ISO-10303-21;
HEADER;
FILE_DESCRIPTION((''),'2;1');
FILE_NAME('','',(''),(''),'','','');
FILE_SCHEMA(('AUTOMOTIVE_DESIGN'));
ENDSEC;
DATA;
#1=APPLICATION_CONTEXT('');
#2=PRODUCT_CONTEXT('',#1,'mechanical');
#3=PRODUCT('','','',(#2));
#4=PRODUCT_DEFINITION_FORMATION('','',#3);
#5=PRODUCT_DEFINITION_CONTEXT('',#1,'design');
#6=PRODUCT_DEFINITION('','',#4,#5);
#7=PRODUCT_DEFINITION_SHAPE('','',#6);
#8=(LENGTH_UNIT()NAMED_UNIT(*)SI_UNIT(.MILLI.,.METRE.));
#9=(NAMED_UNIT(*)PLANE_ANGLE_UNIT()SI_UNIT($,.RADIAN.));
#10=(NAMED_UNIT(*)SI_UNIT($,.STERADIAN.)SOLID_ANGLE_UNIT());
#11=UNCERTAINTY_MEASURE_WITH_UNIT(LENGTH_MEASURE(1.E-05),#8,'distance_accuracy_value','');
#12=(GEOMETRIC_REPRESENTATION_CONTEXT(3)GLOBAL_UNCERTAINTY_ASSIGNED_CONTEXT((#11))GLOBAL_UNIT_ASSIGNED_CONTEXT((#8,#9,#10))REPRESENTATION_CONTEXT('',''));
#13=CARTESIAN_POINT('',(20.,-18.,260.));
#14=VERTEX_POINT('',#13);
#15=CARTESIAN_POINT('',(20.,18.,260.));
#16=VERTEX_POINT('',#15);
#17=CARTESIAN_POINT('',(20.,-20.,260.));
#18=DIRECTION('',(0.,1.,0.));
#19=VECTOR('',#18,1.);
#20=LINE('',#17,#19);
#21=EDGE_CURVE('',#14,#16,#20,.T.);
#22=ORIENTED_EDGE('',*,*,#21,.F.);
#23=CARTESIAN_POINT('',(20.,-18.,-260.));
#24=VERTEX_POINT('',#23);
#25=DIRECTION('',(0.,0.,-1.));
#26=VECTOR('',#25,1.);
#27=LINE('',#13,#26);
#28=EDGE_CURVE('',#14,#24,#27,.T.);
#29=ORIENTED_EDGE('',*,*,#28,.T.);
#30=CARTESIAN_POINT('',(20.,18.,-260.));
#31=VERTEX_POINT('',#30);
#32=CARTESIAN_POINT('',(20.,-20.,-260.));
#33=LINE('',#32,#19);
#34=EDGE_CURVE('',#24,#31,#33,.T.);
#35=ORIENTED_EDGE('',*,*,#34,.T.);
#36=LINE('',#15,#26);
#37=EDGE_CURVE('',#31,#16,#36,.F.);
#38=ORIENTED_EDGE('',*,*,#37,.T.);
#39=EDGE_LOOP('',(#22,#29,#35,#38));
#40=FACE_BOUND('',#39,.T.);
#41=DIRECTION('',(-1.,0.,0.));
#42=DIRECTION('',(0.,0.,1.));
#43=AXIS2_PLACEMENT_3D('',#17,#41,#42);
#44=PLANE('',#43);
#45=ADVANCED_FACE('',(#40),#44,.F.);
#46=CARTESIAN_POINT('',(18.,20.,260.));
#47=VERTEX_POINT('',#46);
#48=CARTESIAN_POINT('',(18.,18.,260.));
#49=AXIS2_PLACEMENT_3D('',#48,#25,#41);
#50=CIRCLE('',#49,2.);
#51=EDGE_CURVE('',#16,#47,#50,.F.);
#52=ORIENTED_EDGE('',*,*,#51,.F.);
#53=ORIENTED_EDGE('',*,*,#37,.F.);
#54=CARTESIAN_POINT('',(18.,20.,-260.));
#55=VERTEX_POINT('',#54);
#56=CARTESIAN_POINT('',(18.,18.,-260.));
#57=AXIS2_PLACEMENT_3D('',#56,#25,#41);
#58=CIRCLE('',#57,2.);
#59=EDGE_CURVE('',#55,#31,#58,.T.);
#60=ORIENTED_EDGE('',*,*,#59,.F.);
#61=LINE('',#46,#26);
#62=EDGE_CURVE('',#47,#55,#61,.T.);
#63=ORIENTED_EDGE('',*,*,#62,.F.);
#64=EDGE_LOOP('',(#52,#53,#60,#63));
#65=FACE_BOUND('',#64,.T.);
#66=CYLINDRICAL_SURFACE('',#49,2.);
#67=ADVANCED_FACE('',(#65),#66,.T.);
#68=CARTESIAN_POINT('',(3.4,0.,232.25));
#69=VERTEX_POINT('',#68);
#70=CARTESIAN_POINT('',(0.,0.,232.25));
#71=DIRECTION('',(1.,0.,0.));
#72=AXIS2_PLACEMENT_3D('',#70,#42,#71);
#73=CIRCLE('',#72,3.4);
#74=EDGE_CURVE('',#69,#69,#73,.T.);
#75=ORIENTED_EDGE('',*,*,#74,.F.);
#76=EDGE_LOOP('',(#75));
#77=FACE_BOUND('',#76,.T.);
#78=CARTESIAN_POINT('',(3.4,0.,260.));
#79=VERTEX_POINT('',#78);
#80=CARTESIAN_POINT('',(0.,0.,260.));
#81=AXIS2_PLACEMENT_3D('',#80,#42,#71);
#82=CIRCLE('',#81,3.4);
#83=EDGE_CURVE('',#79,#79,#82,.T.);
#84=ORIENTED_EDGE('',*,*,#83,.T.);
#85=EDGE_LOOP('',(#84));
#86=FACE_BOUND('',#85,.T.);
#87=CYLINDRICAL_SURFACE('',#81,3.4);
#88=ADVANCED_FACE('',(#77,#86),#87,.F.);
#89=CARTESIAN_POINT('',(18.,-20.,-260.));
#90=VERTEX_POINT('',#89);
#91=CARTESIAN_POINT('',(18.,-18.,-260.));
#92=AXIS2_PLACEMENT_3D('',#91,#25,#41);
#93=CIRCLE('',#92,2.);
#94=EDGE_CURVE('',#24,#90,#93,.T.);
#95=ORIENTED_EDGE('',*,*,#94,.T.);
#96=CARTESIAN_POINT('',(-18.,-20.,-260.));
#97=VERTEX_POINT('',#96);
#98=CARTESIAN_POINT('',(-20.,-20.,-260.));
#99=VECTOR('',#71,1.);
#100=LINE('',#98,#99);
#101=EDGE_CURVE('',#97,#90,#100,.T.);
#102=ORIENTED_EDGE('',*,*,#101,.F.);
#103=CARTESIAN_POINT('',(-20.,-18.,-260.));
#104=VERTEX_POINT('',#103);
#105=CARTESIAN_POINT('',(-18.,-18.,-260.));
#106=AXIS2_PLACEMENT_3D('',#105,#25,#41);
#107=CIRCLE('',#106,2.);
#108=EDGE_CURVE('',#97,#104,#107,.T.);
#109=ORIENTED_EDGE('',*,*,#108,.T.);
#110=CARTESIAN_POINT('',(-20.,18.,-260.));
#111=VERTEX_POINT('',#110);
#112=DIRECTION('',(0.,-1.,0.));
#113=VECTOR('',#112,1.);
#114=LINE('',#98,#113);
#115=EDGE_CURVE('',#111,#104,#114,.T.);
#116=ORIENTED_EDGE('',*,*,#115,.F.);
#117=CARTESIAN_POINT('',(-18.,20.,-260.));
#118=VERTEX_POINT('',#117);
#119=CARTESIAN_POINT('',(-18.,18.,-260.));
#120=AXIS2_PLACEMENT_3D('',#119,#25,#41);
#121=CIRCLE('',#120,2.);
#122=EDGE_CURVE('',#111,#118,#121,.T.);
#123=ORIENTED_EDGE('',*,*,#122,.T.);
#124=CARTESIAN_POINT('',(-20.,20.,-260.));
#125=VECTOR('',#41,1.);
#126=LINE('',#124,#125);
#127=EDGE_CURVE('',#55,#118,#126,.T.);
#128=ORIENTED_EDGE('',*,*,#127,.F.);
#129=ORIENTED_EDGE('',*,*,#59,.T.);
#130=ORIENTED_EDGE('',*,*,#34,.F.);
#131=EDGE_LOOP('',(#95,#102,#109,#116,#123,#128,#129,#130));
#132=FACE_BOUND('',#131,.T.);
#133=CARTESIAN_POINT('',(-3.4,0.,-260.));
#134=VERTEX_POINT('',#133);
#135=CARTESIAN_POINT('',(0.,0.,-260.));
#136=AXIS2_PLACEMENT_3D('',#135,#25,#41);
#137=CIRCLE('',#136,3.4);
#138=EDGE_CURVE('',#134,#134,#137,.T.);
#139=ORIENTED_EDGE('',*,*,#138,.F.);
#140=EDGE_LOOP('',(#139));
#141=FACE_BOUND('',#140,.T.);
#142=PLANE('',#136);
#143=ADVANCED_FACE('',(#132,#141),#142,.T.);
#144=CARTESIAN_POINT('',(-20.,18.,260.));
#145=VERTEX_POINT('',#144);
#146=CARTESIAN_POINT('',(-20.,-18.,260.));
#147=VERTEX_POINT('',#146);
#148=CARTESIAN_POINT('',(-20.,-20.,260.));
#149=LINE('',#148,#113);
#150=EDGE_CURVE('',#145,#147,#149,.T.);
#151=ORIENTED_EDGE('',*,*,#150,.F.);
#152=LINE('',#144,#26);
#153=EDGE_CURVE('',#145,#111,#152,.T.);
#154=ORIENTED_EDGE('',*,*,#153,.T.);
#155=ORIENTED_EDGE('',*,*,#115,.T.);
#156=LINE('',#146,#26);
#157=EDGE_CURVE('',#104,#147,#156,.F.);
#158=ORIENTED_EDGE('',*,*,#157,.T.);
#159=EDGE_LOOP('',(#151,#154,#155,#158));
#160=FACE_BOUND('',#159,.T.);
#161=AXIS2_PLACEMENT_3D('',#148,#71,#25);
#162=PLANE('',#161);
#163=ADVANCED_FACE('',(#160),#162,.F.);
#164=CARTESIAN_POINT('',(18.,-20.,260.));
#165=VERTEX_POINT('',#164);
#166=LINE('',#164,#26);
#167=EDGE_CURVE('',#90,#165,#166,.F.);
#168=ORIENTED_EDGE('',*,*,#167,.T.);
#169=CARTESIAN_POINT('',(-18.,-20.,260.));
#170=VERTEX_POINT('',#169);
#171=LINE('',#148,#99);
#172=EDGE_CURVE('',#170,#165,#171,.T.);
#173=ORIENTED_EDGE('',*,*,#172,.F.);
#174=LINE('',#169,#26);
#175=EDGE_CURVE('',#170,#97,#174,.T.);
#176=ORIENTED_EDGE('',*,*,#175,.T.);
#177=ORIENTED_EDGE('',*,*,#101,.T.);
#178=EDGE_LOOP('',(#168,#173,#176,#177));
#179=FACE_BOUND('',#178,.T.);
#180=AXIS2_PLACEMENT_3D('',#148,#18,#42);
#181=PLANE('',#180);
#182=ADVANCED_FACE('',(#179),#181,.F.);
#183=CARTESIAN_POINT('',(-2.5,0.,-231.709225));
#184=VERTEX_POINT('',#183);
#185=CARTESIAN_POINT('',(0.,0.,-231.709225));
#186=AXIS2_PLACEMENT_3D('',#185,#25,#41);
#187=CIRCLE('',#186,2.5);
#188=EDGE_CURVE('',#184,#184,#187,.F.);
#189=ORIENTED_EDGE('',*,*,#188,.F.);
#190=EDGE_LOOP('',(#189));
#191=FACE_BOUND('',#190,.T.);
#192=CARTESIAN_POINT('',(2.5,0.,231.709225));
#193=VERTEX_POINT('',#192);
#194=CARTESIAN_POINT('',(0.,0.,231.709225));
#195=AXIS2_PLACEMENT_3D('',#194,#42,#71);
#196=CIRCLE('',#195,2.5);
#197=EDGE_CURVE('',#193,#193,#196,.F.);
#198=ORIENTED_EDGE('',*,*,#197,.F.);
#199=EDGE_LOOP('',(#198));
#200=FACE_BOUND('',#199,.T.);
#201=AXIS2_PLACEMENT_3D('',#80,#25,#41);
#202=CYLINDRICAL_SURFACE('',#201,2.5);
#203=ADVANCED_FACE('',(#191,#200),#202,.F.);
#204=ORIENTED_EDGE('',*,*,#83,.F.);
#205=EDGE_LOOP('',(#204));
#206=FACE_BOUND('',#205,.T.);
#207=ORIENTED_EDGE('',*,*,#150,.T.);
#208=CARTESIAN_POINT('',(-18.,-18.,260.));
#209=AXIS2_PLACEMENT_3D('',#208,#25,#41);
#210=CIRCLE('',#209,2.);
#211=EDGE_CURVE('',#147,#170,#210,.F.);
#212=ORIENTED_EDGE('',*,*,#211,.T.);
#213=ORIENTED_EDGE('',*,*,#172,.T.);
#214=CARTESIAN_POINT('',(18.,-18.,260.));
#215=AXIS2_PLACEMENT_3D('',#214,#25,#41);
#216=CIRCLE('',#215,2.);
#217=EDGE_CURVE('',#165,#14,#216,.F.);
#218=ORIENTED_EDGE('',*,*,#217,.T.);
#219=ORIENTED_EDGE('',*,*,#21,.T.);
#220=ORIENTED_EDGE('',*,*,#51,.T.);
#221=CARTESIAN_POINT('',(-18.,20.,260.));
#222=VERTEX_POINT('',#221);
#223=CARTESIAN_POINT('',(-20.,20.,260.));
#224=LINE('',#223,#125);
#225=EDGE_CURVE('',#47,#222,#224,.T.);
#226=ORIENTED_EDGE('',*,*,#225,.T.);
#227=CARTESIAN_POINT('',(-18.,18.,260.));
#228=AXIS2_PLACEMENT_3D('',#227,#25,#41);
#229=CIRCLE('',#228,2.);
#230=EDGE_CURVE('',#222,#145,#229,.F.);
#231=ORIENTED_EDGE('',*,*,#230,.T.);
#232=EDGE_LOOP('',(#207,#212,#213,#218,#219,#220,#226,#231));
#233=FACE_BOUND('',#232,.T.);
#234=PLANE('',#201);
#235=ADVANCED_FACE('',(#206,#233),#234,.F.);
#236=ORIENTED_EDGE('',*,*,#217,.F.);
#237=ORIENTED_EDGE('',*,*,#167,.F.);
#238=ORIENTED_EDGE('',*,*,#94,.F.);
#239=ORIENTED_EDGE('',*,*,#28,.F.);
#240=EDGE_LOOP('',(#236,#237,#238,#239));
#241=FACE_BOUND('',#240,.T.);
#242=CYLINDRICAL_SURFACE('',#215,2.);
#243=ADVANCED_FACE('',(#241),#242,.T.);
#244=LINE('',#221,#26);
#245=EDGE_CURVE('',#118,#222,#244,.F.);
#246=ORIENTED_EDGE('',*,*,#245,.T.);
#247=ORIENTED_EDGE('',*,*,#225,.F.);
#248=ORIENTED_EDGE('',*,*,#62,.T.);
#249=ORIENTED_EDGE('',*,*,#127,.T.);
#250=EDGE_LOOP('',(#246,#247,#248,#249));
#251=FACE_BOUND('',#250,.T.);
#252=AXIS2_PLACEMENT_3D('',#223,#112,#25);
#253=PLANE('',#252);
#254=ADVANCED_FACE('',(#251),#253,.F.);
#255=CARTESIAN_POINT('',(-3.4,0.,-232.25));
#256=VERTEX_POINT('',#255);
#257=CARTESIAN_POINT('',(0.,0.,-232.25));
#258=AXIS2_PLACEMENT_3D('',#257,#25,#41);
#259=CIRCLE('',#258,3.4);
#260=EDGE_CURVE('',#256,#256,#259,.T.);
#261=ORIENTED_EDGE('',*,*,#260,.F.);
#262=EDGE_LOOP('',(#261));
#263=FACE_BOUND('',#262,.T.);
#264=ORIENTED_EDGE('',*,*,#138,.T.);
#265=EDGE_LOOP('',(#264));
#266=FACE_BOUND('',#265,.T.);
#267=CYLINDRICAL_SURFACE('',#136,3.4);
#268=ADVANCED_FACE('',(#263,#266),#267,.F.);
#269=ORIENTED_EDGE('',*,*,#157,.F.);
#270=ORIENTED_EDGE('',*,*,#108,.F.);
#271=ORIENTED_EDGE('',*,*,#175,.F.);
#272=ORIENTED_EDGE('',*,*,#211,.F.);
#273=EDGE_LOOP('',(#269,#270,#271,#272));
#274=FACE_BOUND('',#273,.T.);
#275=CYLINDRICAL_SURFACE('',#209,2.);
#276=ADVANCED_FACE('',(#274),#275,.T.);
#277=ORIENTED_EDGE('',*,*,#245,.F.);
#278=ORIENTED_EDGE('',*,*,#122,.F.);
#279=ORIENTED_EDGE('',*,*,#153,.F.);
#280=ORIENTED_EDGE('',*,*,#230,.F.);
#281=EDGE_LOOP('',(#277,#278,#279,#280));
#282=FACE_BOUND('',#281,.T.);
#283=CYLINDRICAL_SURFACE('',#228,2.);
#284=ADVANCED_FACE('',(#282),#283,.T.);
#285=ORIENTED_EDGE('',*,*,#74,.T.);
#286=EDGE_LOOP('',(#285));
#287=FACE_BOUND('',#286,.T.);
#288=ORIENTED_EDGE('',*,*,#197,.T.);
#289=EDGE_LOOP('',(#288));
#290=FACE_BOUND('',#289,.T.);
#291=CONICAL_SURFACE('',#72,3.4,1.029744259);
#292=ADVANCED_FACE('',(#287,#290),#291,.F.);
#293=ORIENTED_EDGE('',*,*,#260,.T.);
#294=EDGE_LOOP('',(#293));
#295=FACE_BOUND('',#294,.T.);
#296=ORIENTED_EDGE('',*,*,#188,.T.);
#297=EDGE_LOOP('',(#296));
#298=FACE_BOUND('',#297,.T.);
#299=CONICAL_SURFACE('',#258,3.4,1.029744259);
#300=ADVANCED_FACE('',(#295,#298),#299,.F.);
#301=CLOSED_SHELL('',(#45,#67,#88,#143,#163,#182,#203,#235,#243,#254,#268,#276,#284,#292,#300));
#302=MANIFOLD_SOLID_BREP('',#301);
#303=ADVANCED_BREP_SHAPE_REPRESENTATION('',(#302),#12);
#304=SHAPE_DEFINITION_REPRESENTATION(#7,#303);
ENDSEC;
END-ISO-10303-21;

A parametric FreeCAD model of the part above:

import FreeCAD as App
import Part
import Sketcher
from FreeCAD import Vector
Q = App.Units.Quantity


def edges_at(feature, points):
    """Names of the edges that pass closest to the given points."""
    edges = feature.Shape.Edges
    near = lambda p: min(range(len(edges)), key=lambda i: edges[i].distToShape(Part.Vertex(*p))[0])
    return sorted({f"Edge{near(p) + 1}" for p in points})

doc = App.newDocument("Part")
body = doc.addObject("PartDesign::Body", "Body")

# Sketch on XY plane
sketch1 = doc.addObject("Sketcher::SketchObject", "Sketch")
body.addObject(sketch1)
sketch1.AttachmentSupport = (doc.XY_Plane, [""])
sketch1.MapMode = "FlatFace"
sketch1.addGeometry([
    Part.LineSegment(Vector(-20, 20, 0), Vector(-20, -20, 0)),  # 0
    Part.LineSegment(Vector(-20, -20, 0), Vector(20, -20, 0)),  # 1
    Part.LineSegment(Vector(20, -20, 0), Vector(20, 20, 0)),  # 2
    Part.LineSegment(Vector(20, 20, 0), Vector(-20, 20, 0)),  # 3
    Part.Circle(Vector(0, 0, 0), Vector(0, 0, 1), 2.5),  # 4
], False)
sketch1.addConstraint([
    Sketcher.Constraint("Coincident", 0, 2, 1, 1),
    Sketcher.Constraint("Coincident", 1, 2, 2, 1),
    Sketcher.Constraint("Coincident", 2, 2, 3, 1),
    Sketcher.Constraint("Coincident", 3, 2, 0, 1),
    Sketcher.Constraint("Vertical", 0),
    Sketcher.Constraint("Horizontal", 1),
    Sketcher.Constraint("Vertical", 2),
    Sketcher.Constraint("Horizontal", 3),
    Sketcher.Constraint("Coincident", 4, 3, -1, 1),
    Sketcher.Constraint("Symmetric", 0, 2, 2, 2, -1, 1),
    Sketcher.Constraint("Equal", 3, 0),
    Sketcher.Constraint("Diameter", 4, 5.0),
    Sketcher.Constraint("DistanceX", 1, 1, 1, 2, 40.0),
])
pad1 = doc.addObject("PartDesign::Pad", "Pad")
body.addObject(pad1)
pad1.Profile = sketch1
pad1.Length = 520
pad1.Midplane = True
doc.recompute()

fillet = doc.addObject("PartDesign::Fillet", "Fillet")
body.addObject(fillet)
fillet.Base = (pad1, edges_at(pad1, [
    (20, -20, 0),
    (-20, -20, 0),
    (-20, 20, 0),
    (20, 20, 0),
]))
fillet.Radius = 2

# Sketch on YZ plane
sketch2 = doc.addObject("Sketcher::SketchObject", "Sketch001")
body.addObject(sketch2)
sketch2.AttachmentSupport = (doc.YZ_Plane, [""])
sketch2.MapMode = "FlatFace"
sketch2.addGeometry([
    Part.LineSegment(Vector(0, 230.2, 0), Vector(0, 260, 0)),
    Part.LineSegment(Vector(0, 260, 0), Vector(-3.4, 260, 0)),
    Part.LineSegment(Vector(-3.4, 260, 0), Vector(-3.4, 232.2, 0)),
    Part.LineSegment(Vector(-3.4, 232.2, 0), Vector(0, 230.2, 0)),
], False)
sketch2.addConstraint([
    Sketcher.Constraint("Coincident", 0, 2, 1, 1),
    Sketcher.Constraint("Coincident", 1, 2, 2, 1),
    Sketcher.Constraint("Coincident", 2, 2, 3, 1),
    Sketcher.Constraint("Coincident", 3, 2, 0, 1),
    Sketcher.Constraint("Vertical", 0),
    Sketcher.Constraint("Horizontal", 1),
    Sketcher.Constraint("Vertical", 2),
    Sketcher.Constraint("PointOnObject", 0, 2, -2),
    Sketcher.Constraint("Angle", 3, Q("-31 deg")),
    Sketcher.Constraint("DistanceX", 1, 2, 1, 1, 3.4),
    Sketcher.Constraint("DistanceY", -1, 1, 0, 2, 260.0),
    Sketcher.Constraint("DistanceY", 2, 2, 2, 1, 27.75),
])
groove = doc.addObject("PartDesign::Groove", "Groove")
body.addObject(groove)
groove.Profile = sketch2
groove.ReferenceAxis = (sketch2, ["V_Axis"])
groove.Angle = 360
doc.recompute()

mirrored = doc.addObject("PartDesign::Mirrored", "Mirrored")
body.addObject(mirrored)
mirrored.Originals = [groove]
mirrored.MirrorPlane = (doc.XY_Plane, [""])
body.Tip = mirrored

doc.recompute()
